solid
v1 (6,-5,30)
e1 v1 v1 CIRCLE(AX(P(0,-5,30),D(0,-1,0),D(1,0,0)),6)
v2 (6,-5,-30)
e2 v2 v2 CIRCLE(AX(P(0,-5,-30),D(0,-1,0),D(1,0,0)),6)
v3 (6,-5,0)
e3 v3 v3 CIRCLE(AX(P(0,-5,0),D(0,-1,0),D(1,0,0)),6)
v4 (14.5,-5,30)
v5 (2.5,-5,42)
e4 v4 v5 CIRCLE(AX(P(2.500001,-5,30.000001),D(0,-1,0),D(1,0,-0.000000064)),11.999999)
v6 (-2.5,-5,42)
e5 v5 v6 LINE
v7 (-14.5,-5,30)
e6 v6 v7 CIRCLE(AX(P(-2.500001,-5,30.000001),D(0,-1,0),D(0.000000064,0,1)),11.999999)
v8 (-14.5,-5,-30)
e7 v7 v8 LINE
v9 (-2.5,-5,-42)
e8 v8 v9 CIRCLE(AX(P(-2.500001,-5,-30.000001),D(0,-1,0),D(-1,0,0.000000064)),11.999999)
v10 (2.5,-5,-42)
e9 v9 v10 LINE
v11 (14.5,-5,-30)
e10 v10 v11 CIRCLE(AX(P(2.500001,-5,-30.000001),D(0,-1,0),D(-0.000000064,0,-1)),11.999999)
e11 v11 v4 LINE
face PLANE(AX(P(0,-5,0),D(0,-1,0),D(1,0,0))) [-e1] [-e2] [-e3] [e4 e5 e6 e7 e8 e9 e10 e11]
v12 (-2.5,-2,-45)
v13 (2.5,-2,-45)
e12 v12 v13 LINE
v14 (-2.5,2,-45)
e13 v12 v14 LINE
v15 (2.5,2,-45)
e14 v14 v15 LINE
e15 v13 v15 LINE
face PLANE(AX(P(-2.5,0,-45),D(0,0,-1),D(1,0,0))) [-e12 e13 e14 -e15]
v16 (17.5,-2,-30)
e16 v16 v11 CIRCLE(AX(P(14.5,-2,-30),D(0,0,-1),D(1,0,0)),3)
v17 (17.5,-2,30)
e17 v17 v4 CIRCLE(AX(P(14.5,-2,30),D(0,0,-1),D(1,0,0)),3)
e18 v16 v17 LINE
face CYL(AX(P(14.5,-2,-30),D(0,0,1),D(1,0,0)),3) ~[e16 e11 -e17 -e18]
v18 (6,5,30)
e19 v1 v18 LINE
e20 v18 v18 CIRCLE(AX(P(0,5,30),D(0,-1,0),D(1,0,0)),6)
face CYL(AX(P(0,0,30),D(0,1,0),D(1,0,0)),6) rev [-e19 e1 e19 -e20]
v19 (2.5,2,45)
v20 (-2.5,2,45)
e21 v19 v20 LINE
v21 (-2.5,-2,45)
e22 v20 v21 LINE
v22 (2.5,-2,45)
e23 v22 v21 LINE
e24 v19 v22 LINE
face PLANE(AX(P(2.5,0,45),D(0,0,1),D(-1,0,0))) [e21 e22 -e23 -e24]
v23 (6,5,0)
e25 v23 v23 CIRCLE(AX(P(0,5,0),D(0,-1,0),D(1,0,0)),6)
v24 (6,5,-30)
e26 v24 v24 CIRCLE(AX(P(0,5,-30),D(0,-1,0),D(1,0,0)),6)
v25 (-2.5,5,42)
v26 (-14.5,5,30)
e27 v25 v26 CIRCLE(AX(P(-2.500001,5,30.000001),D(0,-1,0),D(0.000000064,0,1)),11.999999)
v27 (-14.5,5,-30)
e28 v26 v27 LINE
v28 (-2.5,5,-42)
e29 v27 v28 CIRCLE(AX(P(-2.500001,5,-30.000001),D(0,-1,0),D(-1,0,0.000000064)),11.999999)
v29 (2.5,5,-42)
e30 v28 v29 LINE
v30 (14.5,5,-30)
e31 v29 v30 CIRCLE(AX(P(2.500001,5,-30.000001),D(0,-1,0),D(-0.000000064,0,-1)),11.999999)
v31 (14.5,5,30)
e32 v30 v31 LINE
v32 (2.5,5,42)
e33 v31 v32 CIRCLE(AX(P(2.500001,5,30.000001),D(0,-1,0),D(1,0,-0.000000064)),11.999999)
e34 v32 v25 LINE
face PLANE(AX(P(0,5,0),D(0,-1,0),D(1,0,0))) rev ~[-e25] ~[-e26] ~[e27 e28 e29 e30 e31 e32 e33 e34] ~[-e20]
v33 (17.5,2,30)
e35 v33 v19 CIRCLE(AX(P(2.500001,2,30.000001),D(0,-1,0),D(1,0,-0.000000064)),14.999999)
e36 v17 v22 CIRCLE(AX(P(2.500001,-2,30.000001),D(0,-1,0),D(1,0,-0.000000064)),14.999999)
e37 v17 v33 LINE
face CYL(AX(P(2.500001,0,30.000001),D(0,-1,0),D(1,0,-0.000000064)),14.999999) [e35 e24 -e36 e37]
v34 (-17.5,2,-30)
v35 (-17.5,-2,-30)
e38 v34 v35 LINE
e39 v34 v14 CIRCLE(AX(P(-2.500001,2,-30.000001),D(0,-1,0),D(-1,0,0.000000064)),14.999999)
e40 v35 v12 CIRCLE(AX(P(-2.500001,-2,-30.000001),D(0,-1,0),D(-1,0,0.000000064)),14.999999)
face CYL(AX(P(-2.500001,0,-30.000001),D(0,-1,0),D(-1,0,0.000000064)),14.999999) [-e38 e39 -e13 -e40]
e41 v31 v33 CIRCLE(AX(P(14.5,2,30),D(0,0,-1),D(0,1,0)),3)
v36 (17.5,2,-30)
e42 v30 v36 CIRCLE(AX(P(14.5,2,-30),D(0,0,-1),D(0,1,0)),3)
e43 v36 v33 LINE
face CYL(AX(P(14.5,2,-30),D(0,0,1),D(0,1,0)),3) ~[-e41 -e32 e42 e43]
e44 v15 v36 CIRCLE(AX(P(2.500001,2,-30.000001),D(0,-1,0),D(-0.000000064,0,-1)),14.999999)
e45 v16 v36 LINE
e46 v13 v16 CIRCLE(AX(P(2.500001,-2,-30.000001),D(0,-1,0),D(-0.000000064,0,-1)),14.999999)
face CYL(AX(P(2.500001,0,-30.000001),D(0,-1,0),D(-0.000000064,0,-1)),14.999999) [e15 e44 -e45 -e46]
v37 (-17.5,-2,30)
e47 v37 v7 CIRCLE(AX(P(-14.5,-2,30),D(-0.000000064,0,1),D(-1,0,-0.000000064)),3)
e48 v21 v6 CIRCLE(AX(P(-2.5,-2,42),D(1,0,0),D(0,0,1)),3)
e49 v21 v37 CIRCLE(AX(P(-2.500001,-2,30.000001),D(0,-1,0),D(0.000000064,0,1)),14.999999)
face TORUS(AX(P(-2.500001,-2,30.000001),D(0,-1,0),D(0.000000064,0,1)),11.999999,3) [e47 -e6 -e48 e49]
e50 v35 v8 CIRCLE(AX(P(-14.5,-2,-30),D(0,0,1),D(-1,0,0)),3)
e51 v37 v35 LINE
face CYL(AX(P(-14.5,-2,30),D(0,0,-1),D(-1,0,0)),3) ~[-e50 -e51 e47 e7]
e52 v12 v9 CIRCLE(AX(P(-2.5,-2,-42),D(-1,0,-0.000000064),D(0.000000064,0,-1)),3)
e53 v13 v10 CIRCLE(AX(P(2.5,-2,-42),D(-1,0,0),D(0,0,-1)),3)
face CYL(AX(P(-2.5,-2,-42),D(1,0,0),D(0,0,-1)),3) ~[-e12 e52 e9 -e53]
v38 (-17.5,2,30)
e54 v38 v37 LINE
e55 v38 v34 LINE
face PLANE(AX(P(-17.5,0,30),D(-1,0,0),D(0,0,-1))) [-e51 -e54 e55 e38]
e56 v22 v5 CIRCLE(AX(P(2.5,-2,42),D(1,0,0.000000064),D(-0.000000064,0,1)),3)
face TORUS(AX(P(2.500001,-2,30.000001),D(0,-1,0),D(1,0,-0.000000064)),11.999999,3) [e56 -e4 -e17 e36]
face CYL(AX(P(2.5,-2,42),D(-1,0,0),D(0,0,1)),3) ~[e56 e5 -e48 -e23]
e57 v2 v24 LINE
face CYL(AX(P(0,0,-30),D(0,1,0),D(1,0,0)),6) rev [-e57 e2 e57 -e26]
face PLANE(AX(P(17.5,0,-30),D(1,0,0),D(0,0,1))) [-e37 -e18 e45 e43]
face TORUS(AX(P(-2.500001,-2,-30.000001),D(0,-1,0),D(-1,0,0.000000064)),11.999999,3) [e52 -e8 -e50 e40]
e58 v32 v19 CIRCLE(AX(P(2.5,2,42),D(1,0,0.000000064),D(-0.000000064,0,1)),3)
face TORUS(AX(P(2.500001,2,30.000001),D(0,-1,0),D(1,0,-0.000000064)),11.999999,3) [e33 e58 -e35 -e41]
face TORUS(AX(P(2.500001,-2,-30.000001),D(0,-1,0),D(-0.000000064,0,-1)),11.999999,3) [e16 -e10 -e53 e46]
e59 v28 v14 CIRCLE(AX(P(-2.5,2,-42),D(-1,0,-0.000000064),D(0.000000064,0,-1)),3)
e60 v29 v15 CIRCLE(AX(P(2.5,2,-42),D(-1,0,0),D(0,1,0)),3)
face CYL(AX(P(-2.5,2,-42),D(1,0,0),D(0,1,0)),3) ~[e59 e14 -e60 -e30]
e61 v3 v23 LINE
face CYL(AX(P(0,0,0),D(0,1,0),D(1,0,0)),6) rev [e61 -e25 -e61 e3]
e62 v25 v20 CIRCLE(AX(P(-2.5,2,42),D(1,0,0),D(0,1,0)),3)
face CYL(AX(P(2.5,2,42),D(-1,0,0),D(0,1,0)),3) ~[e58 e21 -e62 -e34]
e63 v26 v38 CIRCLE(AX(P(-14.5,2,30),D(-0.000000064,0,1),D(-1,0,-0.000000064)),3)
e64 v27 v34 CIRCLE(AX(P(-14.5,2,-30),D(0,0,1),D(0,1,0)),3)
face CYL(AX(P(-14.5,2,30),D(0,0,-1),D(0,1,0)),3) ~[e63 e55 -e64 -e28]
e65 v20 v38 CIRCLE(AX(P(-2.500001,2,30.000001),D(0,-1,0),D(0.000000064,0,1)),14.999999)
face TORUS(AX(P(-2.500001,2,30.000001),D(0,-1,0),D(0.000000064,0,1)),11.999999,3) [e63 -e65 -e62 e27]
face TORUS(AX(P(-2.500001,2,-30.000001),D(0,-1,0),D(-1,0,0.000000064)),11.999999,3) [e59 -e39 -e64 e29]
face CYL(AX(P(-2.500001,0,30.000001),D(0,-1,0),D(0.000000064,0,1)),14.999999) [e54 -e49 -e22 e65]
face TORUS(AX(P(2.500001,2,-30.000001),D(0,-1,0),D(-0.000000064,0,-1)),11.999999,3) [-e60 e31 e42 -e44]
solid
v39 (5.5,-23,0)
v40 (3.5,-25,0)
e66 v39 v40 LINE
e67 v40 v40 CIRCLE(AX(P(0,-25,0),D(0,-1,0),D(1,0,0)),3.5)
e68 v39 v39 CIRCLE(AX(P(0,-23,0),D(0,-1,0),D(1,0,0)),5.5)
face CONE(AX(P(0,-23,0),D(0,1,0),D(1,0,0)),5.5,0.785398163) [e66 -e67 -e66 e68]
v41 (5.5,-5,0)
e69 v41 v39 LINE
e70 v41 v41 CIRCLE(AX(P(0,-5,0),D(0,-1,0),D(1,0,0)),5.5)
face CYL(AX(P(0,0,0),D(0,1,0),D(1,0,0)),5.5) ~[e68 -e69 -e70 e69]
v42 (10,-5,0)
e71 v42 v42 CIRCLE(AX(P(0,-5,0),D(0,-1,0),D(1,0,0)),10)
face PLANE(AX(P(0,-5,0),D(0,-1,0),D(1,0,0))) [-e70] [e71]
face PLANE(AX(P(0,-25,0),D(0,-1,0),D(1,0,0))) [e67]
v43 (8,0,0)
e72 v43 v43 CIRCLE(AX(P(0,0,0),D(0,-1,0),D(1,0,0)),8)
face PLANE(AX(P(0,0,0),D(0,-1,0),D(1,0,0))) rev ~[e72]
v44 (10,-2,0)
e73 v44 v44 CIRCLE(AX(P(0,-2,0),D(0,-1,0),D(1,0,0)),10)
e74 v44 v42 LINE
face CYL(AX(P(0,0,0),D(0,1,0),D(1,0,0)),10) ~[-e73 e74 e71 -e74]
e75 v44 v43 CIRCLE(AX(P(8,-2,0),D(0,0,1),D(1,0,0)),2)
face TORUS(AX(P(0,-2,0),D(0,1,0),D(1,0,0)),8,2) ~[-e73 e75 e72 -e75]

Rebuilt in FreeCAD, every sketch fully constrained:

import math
import FreeCAD as App
import Part
import Sketcher
from FreeCAD import Vector


def edges_at(feature, points):
    """Names of the edges that pass closest to the given points."""
    edges = feature.Shape.Edges
    near = lambda p: min(range(len(edges)), key=lambda i: edges[i].distToShape(Part.Vertex(*p))[0])
    return sorted({f"Edge{near(p) + 1}" for p in points})

doc = App.newDocument("Part")
body = doc.addObject("PartDesign::Body", "Body")

sketch1 = body.newObject("Sketcher::SketchObject", "Sketch")
sketch1.AttachmentSupport = (doc.getObject("XZ_Plane"), [""])
sketch1.MapMode = "FlatFace"
sketch1.addGeometry(Part.ArcOfCircle(Part.Circle(Vector(2.500001, 30.000001, 0), Vector(0, 0, 1), 14.999999), math.radians(-0.000004), math.radians(90.000004)), False)
sketch1.addGeometry(Part.LineSegment(Vector(2.5, 45, 0), Vector(-2.5, 45, 0)), False)
sketch1.addGeometry(Part.ArcOfCircle(Part.Circle(Vector(-2.500001, 30.000001, 0), Vector(0, 0, 1), 14.999999), math.radians(89.999996), math.radians(180.000004)), False)
sketch1.addGeometry(Part.LineSegment(Vector(-17.5, 30, 0), Vector(-17.5, -30, 0)), False)
sketch1.addGeometry(Part.ArcOfCircle(Part.Circle(Vector(-2.500001, -30.000001, 0), Vector(0, 0, 1), 14.999999), math.radians(179.999996), math.radians(270.000004)), False)
sketch1.addGeometry(Part.LineSegment(Vector(-2.5, -45, 0), Vector(2.5, -45, 0)), False)
sketch1.addGeometry(Part.ArcOfCircle(Part.Circle(Vector(2.500001, -30.000001, 0), Vector(0, 0, 1), 14.999999), math.radians(-90.000004), math.radians(0.000004)), False)
sketch1.addGeometry(Part.LineSegment(Vector(17.5, -30, 0), Vector(17.5, 30, 0)), False)
sketch1.addGeometry(Part.Circle(Vector(0, -30, 0), Vector(0, 0, 1), 6), False)
sketch1.addGeometry(Part.Circle(Vector(0, 0, 0), Vector(0, 0, 1), 6), False)
sketch1.addGeometry(Part.Circle(Vector(0, 30, 0), Vector(0, 0, 1), 6), False)
sketch1.addConstraint(Sketcher.Constraint("Tangent", 0, 2, 1, 1))
sketch1.addConstraint(Sketcher.Constraint("Tangent", 1, 2, 2, 1))
sketch1.addConstraint(Sketcher.Constraint("Tangent", 2, 2, 3, 1))
sketch1.addConstraint(Sketcher.Constraint("Tangent", 3, 2, 4, 1))
sketch1.addConstraint(Sketcher.Constraint("Tangent", 4, 2, 5, 1))
sketch1.addConstraint(Sketcher.Constraint("Tangent", 5, 2, 6, 1))
sketch1.addConstraint(Sketcher.Constraint("Tangent", 6, 2, 7, 1))
sketch1.addConstraint(Sketcher.Constraint("Tangent", 7, 2, 0, 1))
sketch1.addConstraint(Sketcher.Constraint("Horizontal", 1))
sketch1.addConstraint(Sketcher.Constraint("Vertical", 3))
sketch1.addConstraint(Sketcher.Constraint("Horizontal", 5))
sketch1.addConstraint(Sketcher.Constraint("Vertical", 7))
sketch1.addConstraint(Sketcher.Constraint("Coincident", 9, 3, -1, 1))
sketch1.addConstraint(Sketcher.Constraint("Equal", 0, 2))
sketch1.addConstraint(Sketcher.Constraint("Equal", 2, 4))
sketch1.addConstraint(Sketcher.Constraint("Equal", 4, 6))
sketch1.addConstraint(Sketcher.Constraint("Equal", 8, 9))
sketch1.addConstraint(Sketcher.Constraint("Equal", 9, 10))
sketch1.addConstraint(Sketcher.Constraint("Symmetric", 0, 3, 4, 3, -1, 1))
sketch1.addConstraint(Sketcher.Constraint("Symmetric", 8, 3, 10, 3, -1, 1))
sketch1.addConstraint(Sketcher.Constraint("PointOnObject", 8, 3, -2))
sketch1.addConstraint(Sketcher.Constraint("Horizontal", 6, 3, 8, 3))
sketch1.addConstraint(Sketcher.Constraint("Diameter", 8, 12.0))
sketch1.addConstraint(Sketcher.Constraint("Radius", 0, 14.999999))
sketch1.addConstraint(Sketcher.Constraint("DistanceX", 1, 2, 1, 1, 5.0))
sketch1.addConstraint(Sketcher.Constraint("DistanceY", 3, 2, 3, 1, 60.0))
pad1 = body.newObject("PartDesign::Pad", "Pad")
pad1.Profile = sketch1
pad1.Length = 10
pad1.Midplane = True
doc.recompute()

fillet = body.newObject("PartDesign::Fillet", "Fillet")
fillet.Base = (pad1, edges_at(pad1, [(17.5, -5, 0)]))
fillet.Radius = 3
doc.recompute()

fillet2 = body.newObject("PartDesign::Fillet", "Fillet001")
fillet2.Base = (fillet, edges_at(fillet, [(17.5, 5, 0)]))
fillet2.Radius = 3
body2 = doc.addObject("PartDesign::Body", "Body001")

sketch2 = body2.newObject("Sketcher::SketchObject", "Sketch001")
sketch2.AttachmentSupport = (doc.getObject("XZ_Plane001"), [""])
sketch2.MapMode = "FlatFace"
sketch2.addGeometry(Part.Circle(Vector(0, 0, 0), Vector(0, 0, 1), 10), False)
sketch2.addGeometry(Part.Circle(Vector(0, 0, 0), Vector(0, 0, 1), 5.5), False)
sketch2.addConstraint(Sketcher.Constraint("Coincident", 0, 3, -1, 1))
sketch2.addConstraint(Sketcher.Constraint("Coincident", 1, 3, -1, 1))
sketch2.addConstraint(Sketcher.Constraint("Diameter", 0, 20.0))
sketch2.addConstraint(Sketcher.Constraint("Diameter", 1, 11.0))
pad2 = body2.newObject("PartDesign::Pad", "Pad001")
pad2.Profile = sketch2
pad2.Length = 5

sketch3 = body2.newObject("Sketcher::SketchObject", "Sketch002")
sketch3.AttachmentSupport = (doc.getObject("XZ_Plane001"), [""])
sketch3.MapMode = "FlatFace"
sketch3.addGeometry(Part.Circle(Vector(0, 0, 0), Vector(0, 0, 1), 5.5), False)
sketch3.addConstraint(Sketcher.Constraint("Coincident", 0, 3, -1, 1))
sketch3.addConstraint(Sketcher.Constraint("Diameter", 0, 11.0))
pad3 = body2.newObject("PartDesign::Pad", "Pad002")
pad3.Profile = sketch3
pad3.Length = 25
doc.recompute()

chamfer = body2.newObject("PartDesign::Chamfer", "Chamfer")
chamfer.Base = (pad3, edges_at(pad3, [(-5.5, -25, 0)]))
chamfer.Size = 2
doc.recompute()

fillet3 = body2.newObject("PartDesign::Fillet", "Fillet002")
fillet3.Base = (chamfer, edges_at(chamfer, [(-10, 0, 0)]))
fillet3.Radius = 2

doc.recompute()
